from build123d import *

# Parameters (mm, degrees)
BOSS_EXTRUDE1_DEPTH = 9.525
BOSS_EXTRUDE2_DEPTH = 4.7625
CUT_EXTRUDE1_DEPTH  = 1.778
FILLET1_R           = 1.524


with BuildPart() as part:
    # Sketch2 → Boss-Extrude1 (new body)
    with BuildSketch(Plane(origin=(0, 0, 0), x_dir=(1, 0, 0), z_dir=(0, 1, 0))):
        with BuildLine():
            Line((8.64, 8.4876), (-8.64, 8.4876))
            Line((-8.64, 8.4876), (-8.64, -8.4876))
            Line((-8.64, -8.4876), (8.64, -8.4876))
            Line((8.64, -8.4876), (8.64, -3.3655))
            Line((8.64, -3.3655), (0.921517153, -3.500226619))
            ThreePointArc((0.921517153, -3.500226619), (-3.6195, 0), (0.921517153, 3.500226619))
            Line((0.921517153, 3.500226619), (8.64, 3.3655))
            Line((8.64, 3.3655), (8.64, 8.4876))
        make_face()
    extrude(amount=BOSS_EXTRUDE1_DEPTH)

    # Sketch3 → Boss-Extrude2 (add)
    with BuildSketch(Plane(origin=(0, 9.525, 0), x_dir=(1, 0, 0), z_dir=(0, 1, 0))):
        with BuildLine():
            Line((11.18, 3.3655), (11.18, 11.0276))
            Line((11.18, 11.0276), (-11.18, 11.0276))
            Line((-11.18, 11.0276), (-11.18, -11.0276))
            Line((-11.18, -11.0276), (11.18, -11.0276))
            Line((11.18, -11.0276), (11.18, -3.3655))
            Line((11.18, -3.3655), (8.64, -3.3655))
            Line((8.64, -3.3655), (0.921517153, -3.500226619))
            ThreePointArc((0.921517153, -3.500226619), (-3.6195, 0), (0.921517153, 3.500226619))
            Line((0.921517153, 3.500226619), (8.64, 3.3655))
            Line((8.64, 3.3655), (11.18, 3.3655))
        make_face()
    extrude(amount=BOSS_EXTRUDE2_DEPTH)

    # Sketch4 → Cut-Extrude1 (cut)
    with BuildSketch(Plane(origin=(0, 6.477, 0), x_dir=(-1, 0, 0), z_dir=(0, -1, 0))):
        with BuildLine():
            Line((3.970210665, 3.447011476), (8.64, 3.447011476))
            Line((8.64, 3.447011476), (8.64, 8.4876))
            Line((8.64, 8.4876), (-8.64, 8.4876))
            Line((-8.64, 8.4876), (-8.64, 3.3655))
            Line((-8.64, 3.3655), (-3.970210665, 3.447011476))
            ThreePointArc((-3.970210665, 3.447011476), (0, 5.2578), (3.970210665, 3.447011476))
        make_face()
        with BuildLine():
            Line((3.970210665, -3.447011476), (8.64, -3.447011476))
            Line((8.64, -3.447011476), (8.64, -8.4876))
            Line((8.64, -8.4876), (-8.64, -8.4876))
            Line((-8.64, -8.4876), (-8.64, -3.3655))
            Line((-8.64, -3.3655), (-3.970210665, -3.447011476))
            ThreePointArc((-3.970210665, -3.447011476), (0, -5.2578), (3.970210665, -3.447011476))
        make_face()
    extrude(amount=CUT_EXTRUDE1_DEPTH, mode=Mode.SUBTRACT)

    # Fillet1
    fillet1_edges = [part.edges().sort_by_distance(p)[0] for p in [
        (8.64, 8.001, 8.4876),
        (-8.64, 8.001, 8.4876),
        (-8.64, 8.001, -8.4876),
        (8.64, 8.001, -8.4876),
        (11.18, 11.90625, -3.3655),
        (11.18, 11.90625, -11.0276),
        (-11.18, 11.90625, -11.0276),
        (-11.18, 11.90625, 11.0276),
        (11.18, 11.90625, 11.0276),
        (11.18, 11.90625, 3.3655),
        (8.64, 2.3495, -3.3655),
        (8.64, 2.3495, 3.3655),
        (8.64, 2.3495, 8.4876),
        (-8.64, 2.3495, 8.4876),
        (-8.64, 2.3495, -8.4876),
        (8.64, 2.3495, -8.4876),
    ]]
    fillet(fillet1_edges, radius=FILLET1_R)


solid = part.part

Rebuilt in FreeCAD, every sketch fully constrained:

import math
import FreeCAD as App
import Part
import Sketcher
Q = App.Units.Quantity


def edges_at(feature, points):
    """Names of the edges that pass closest to the given points."""
    edges = feature.Shape.Edges
    near = lambda p: min(range(len(edges)), key=lambda i: edges[i].distToShape(Part.Vertex(*p))[0])
    return sorted({f"Edge{near(p) + 1}" for p in points})

doc = App.newDocument("Part")
body = doc.addObject("PartDesign::Body", "Body")

sketch1 = body.newObject("Sketcher::SketchObject", "Sketch")
sketch1.AttachmentSupport = (doc.getObject("XZ_Plane"), [""])
sketch1.MapMode = "FlatFace"
sketch1.addGeometry([
    Part.LineSegment(App.Vector(8.6, -8.5, 0), App.Vector(-8.6, -8.5, 0)),
    Part.LineSegment(App.Vector(-8.6, -8.5, 0), App.Vector(-8.6, 8.5, 0)),
    Part.LineSegment(App.Vector(-8.6, 8.5, 0), App.Vector(8.6, 8.5, 0)),
    Part.LineSegment(App.Vector(8.6, 8.5, 0), App.Vector(8.6, 3.4, 0)),
    Part.LineSegment(App.Vector(8.6, 3.4, 0), App.Vector(0.9, 3.5, 0)),
    Part.ArcOfCircle(Part.Circle(App.Vector(0, 0, 0), App.Vector(0, 0, 1), 3.6), math.radians(75), math.radians(285)),
    Part.LineSegment(App.Vector(0.9, -3.5, 0), App.Vector(8.6, -3.4, 0)),
    Part.LineSegment(App.Vector(8.6, -3.4, 0), App.Vector(8.6, -8.5, 0)),
], False)
sketch1.addConstraint([
    Sketcher.Constraint("Coincident", 0, 2, 1, 1),
    Sketcher.Constraint("Coincident", 1, 2, 2, 1),
    Sketcher.Constraint("Coincident", 2, 2, 3, 1),
    Sketcher.Constraint("Coincident", 3, 2, 4, 1),
    Sketcher.Constraint("Coincident", 4, 2, 5, 1),
    Sketcher.Constraint("Coincident", 5, 2, 6, 1),
    Sketcher.Constraint("Coincident", 6, 2, 7, 1),
    Sketcher.Constraint("Coincident", 7, 2, 0, 1),
    Sketcher.Constraint("Horizontal", 0),
    Sketcher.Constraint("Vertical", 1),
    Sketcher.Constraint("Horizontal", 2),
    Sketcher.Constraint("Vertical", 3),
    Sketcher.Constraint("Vertical", 7),
    Sketcher.Constraint("Coincident", 5, 3, -1, 1),
    Sketcher.Constraint("Symmetric", 0, 2, 2, 2, -1, 1),
    Sketcher.Constraint("Symmetric", 3, 2, 6, 2, -1),
    Sketcher.Constraint("Vertical", 4, 2, 5, 2),
    Sketcher.Constraint("Angle", 4, Q("179 deg")),
    Sketcher.Constraint("Radius", 5, Q("0.1425 in")),
    Sketcher.Constraint("DistanceY", 6, 2, 3, 2, Q("0.265 in")),
    Sketcher.Constraint("DistanceX", 0, 2, 0, 1, Q("17.28 mm")),
    Sketcher.Constraint("DistanceY", 1, 1, 1, 2, Q("16.9752 mm")),
])
pad1 = body.newObject("PartDesign::Pad", "Pad")
pad1.Profile = sketch1
pad1.Length = Q("0.375 in")
pad1.Reversed = True

sketch2 = body.newObject("Sketcher::SketchObject", "Sketch001")
sketch2.AttachmentSupport = (doc.getObject("XZ_Plane"), [""])
sketch2.MapMode = "FlatFace"
sketch2.AttachmentOffset = App.Placement(App.Vector(0, 0, -0.375 * 25.4), App.Rotation())
sketch2.addGeometry([
    Part.LineSegment(App.Vector(11.2, -3.4, 0), App.Vector(11.2, -11, 0)),
    Part.LineSegment(App.Vector(11.2, -11, 0), App.Vector(-11.2, -11, 0)),
    Part.LineSegment(App.Vector(-11.2, -11, 0), App.Vector(-11.2, 11, 0)),
    Part.LineSegment(App.Vector(-11.2, 11, 0), App.Vector(11.2, 11, 0)),
    Part.LineSegment(App.Vector(11.2, 11, 0), App.Vector(11.2, 3.4, 0)),
    Part.LineSegment(App.Vector(11.2, 3.4, 0), App.Vector(8.6, 3.4, 0)),
    Part.LineSegment(App.Vector(8.6, 3.4, 0), App.Vector(0.9, 3.5, 0)),
    Part.ArcOfCircle(Part.Circle(App.Vector(0, 0, 0), App.Vector(0, 0, 1), 3.6), math.radians(75), math.radians(285)),
    Part.LineSegment(App.Vector(0.9, -3.5, 0), App.Vector(8.6, -3.4, 0)),
    Part.LineSegment(App.Vector(8.6, -3.4, 0), App.Vector(11.2, -3.4, 0)),
], False)
sketch2.addConstraint([
    Sketcher.Constraint("Coincident", 0, 2, 1, 1),
    Sketcher.Constraint("Coincident", 1, 2, 2, 1),
    Sketcher.Constraint("Coincident", 2, 2, 3, 1),
    Sketcher.Constraint("Coincident", 3, 2, 4, 1),
    Sketcher.Constraint("Coincident", 4, 2, 5, 1),
    Sketcher.Constraint("Coincident", 5, 2, 6, 1),
    Sketcher.Constraint("Coincident", 6, 2, 7, 1),
    Sketcher.Constraint("Coincident", 7, 2, 8, 1),
    Sketcher.Constraint("Coincident", 8, 2, 9, 1),
    Sketcher.Constraint("Coincident", 9, 2, 0, 1),
    Sketcher.Constraint("Vertical", 0),
    Sketcher.Constraint("Horizontal", 1),
    Sketcher.Constraint("Vertical", 2),
    Sketcher.Constraint("Horizontal", 3),
    Sketcher.Constraint("Vertical", 4),
    Sketcher.Constraint("Horizontal", 5),
    Sketcher.Constraint("Horizontal", 9),
    Sketcher.Constraint("Coincident", 7, 3, -1, 1),
    Sketcher.Constraint("Symmetric", 0, 2, 2, 2, -1, 1),
    Sketcher.Constraint("Symmetric", 5, 2, 8, 2, -1),
    Sketcher.Constraint("Vertical", 0, 2, 3, 2),
    Sketcher.Constraint("Vertical", 6, 2, 7, 2),
    Sketcher.Constraint("DistanceX", 5, 2, 5, 1, Q("0.1 in")),
    Sketcher.Constraint("Angle", 6, Q("179 deg")),
    Sketcher.Constraint("Radius", 7, Q("0.1425 in")),
    Sketcher.Constraint("DistanceY", 8, 2, 5, 2, Q("0.265 in")),
    Sketcher.Constraint("DistanceX", 1, 2, 1, 1, Q("22.36 mm")),
    Sketcher.Constraint("DistanceY", 0, 2, 0, 1, Q("7.6621 mm")),
])
pad2 = body.newObject("PartDesign::Pad", "Pad001")
pad2.Profile = sketch2
pad2.Length = Q("0.1875 in")
pad2.Reversed = True

sketch3 = body.newObject("Sketcher::SketchObject", "Sketch002")
sketch3.AttachmentSupport = (doc.getObject("XZ_Plane"), [""])
sketch3.MapMode = "FlatFace"
sketch3.AttachmentOffset = App.Placement(App.Vector(0, 0, -0.255 * 25.4), App.Rotation())
sketch3.addGeometry([
    Part.LineSegment(App.Vector(-4, -3.4, 0), App.Vector(-8.6, -3.4, 0)),
    Part.LineSegment(App.Vector(-8.6, -3.4, 0), App.Vector(-8.6, -8.5, 0)),
    Part.LineSegment(App.Vector(-8.6, -8.5, 0), App.Vector(8.6, -8.5, 0)),
    Part.LineSegment(App.Vector(8.6, -8.5, 0), App.Vector(8.6, -3.4, 0)),
    Part.LineSegment(App.Vector(8.6, -3.4, 0), App.Vector(4, -3.4, 0)),
    Part.ArcOfCircle(Part.Circle(App.Vector(0, 0, 0), App.Vector(0, 0, 1), 5.3), math.radians(-139), math.radians(-41)),
    Part.LineSegment(App.Vector(-8.6, 3.4, 0), App.Vector(-4, 3.4, 0)),
    Part.ArcOfCircle(Part.Circle(App.Vector(0, 0, 0), App.Vector(0, 0, 1), 5.3), math.radians(41), math.radians(139)),
    Part.LineSegment(App.Vector(4, 3.4, 0), App.Vector(8.6, 3.4, 0)),
    Part.LineSegment(App.Vector(8.6, 3.4, 0), App.Vector(8.6, 8.5, 0)),
    Part.LineSegment(App.Vector(8.6, 8.5, 0), App.Vector(-8.6, 8.5, 0)),
    Part.LineSegment(App.Vector(-8.6, 8.5, 0), App.Vector(-8.6, 3.4, 0)),
], False)
sketch3.addConstraint([
    Sketcher.Constraint("Coincident", 0, 2, 1, 1),
    Sketcher.Constraint("Coincident", 1, 2, 2, 1),
    Sketcher.Constraint("Coincident", 2, 2, 3, 1),
    Sketcher.Constraint("Coincident", 3, 2, 4, 1),
    Sketcher.Constraint("Coincident", 4, 2, 5, 2),
    Sketcher.Constraint("Coincident", 5, 1, 0, 1),
    Sketcher.Constraint("Coincident", 6, 2, 7, 2),
    Sketcher.Constraint("Coincident", 7, 1, 8, 1),
    Sketcher.Constraint("Coincident", 8, 2, 9, 1),
    Sketcher.Constraint("Coincident", 9, 2, 10, 1),
    Sketcher.Constraint("Coincident", 10, 2, 11, 1),
    Sketcher.Constraint("Coincident", 11, 2, 6, 1),
    Sketcher.Constraint("Horizontal", 0),
    Sketcher.Constraint("Vertical", 1),
    Sketcher.Constraint("Horizontal", 2),
    Sketcher.Constraint("Vertical", 3),
    Sketcher.Constraint("Horizontal", 6),
    Sketcher.Constraint("Vertical", 9),
    Sketcher.Constraint("Horizontal", 10),
    Sketcher.Constraint("Vertical", 11),
    Sketcher.Constraint("Coincident", 5, 3, -1, 1),
    Sketcher.Constraint("Coincident", 7, 3, -1, 1),
    Sketcher.Constraint("Equal", 5, 7),
    Sketcher.Constraint("Symmetric", 1, 2, 9, 2, -1, 1),
    Sketcher.Constraint("Symmetric", 3, 2, 8, 2, -1),
    Sketcher.Constraint("Symmetric", 0, 2, 11, 2, -1),
    Sketcher.Constraint("Horizontal", 0, 2, 4, 2),
    Sketcher.Constraint("Horizontal", 6, 2, 7, 1),
    Sketcher.Constraint("Angle", 4, Q("-179 deg")),
    Sketcher.Constraint("Radius", 5, Q("0.207 in")),
    Sketcher.Constraint("DistanceY", 3, 2, 8, 2, Q("0.265 in")),
    Sketcher.Constraint("DistanceX", 2, 1, 2, 2, Q("17.28 mm")),
    Sketcher.Constraint("DistanceY", 3, 1, 3, 2, Q("5.1221 mm")),
])
pocket1 = body.newObject("PartDesign::Pocket", "Pocket")
pocket1.Profile = sketch3
pocket1.Length = Q("0.07 in")
pocket1.Reversed = True
doc.recompute()

fillet = body.newObject("PartDesign::Fillet", "Fillet")
fillet.Base = (pocket1, edges_at(pocket1, [
    (8.64, 8.001, 8.488),
    (-8.64, 8.001, 8.488),
    (-8.64, 8.001, -8.488),
    (8.64, 8.001, -8.488),
    (11.18, 11.906, -3.365),
    (11.18, 11.906, -11.028),
    (-11.18, 11.906, -11.028),
    (-11.18, 11.906, 11.028),
    (11.18, 11.906, 11.028),
    (11.18, 11.906, 3.365),
    (8.64, 2.349, -3.365),
    (8.64, 2.349, 3.365),
    (8.64, 2.349, 8.488),
    (-8.64, 2.349, 8.488),
    (-8.64, 2.349, -8.488),
    (8.64, 2.349, -8.488),
]))
fillet.Radius = Q("0.06 in")

doc.recompute()
